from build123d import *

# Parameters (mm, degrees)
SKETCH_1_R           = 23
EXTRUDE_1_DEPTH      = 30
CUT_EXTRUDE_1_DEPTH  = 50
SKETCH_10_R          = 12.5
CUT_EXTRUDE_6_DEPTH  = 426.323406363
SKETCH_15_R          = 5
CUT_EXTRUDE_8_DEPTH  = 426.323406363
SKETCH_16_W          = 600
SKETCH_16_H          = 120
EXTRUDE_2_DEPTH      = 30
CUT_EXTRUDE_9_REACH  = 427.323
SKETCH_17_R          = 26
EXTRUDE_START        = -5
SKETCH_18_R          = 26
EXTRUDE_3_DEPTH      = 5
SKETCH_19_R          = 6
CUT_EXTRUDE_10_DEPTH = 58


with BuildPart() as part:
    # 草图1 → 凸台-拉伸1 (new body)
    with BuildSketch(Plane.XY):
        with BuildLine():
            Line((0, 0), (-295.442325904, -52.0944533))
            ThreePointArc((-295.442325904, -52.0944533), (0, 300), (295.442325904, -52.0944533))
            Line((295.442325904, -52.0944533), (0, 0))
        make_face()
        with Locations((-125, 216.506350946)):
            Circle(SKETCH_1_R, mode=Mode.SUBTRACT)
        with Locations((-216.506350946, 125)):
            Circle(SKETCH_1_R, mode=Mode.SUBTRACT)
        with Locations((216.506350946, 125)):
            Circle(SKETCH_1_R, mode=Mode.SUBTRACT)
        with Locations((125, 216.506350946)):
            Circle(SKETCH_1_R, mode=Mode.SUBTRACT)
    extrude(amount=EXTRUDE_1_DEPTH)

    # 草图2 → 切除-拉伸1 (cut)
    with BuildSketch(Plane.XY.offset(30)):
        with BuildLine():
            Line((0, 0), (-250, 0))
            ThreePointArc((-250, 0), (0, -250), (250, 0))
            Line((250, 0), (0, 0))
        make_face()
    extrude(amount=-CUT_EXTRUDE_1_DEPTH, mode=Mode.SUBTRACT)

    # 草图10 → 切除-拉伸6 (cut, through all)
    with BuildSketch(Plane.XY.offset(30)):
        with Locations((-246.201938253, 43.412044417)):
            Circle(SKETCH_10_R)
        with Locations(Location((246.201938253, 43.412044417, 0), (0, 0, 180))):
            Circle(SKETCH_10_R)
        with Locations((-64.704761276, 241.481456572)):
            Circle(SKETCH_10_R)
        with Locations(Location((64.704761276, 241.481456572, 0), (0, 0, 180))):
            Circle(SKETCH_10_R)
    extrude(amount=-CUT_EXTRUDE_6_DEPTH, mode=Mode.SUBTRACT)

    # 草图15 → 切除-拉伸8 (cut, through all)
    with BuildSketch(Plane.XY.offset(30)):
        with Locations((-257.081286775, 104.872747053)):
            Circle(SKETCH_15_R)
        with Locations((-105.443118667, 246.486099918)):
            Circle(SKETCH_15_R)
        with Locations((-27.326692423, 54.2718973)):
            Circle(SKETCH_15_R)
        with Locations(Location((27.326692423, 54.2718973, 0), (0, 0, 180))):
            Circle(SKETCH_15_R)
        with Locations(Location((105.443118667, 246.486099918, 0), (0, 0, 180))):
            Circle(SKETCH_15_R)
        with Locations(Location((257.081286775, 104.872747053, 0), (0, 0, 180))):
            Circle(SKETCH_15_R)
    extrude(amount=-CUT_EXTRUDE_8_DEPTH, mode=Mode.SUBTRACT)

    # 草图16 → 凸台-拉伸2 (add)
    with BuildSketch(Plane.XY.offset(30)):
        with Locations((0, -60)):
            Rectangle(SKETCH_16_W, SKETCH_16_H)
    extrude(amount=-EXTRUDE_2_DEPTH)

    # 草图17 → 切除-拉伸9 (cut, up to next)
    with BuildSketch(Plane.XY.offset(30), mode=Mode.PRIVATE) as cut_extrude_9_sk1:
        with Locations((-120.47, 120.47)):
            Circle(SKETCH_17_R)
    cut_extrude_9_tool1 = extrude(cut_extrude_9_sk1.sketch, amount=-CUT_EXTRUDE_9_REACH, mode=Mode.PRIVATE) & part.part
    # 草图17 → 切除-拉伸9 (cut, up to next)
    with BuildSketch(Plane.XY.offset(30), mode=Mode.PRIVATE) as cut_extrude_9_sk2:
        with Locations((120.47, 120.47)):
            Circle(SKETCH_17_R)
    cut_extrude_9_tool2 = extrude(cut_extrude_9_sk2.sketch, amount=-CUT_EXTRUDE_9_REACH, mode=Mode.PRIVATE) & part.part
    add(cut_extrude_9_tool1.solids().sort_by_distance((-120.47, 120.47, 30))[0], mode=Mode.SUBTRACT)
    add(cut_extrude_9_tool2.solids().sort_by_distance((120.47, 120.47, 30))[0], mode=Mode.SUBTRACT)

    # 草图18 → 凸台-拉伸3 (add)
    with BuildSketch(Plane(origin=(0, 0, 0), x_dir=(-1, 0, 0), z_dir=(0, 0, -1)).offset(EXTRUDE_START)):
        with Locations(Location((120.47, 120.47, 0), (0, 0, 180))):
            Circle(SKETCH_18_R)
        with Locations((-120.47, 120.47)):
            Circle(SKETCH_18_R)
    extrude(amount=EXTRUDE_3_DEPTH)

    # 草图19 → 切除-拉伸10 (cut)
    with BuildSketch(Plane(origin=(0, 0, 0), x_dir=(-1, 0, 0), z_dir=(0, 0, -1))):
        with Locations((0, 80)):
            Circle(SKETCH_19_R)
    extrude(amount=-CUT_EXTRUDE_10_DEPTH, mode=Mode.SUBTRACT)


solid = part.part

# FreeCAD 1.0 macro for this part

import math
import FreeCAD as App
import Part
import Sketcher

V = App.Vector
Q = App.Units.Quantity

doc = App.newDocument("Part")
body = doc.addObject("PartDesign::Body", "Body")

sketch1 = body.newObject("Sketcher::SketchObject", "Sketch")
sketch1.AttachmentSupport = (doc.getObject("XY_Plane"), [""])
sketch1.MapMode = "FlatFace"
sketch1.addGeometry([
    Part.LineSegment(V(-295, -52, 0), V(0, 0, 0)),
    Part.LineSegment(V(0, 0, 0), V(295, -52, 0)),
    Part.ArcOfCircle(Part.Circle(V(0, 0, 0), V(0, 0, 1), 300), math.radians(-10), math.radians(190)),
    Part.Circle(V(217, 125, 0), V(0, 0, 1), 23),
    Part.Circle(V(-217, 125, 0), V(0, 0, 1), 23),
    Part.Circle(V(125, 217, 0), V(0, 0, 1), 23),
    Part.Circle(V(-125, 217, 0), V(0, 0, 1), 23),
], False)
sketch1.addConstraint([
    Sketcher.Constraint("Coincident", 0, 2, 1, 1),
    Sketcher.Constraint("Coincident", 1, 2, 2, 1),
    Sketcher.Constraint("Coincident", 2, 2, 0, 1),
    Sketcher.Constraint("Coincident", 2, 3, -1, 1),
    Sketcher.Constraint("Coincident", 0, 2, -1, 1),
    Sketcher.Constraint("Equal", 3, 4),
    Sketcher.Constraint("Equal", 4, 5),
    Sketcher.Constraint("Equal", 5, 6),
    Sketcher.Constraint("Symmetric", 3, 3, 4, 3, -2),
    Sketcher.Constraint("Symmetric", 5, 3, 6, 3, -2),
    Sketcher.Constraint("Horizontal", 1, 2, 2, 2),
    Sketcher.Constraint("Diameter", 3, 46.0),
    Sketcher.Constraint("Radius", 2, 300.0),
    Sketcher.Constraint("Angle", 0, Q("10 deg")),
    Sketcher.Constraint("DistanceY", -1, 1, 3, 3, 125.0),
    Sketcher.Constraint("DistanceX", -1, 1, 5, 3, 125.0),
    Sketcher.Constraint("DistanceX", 4, 3, 3, 3, 433.012702),
    Sketcher.Constraint("DistanceY", -1, 1, 5, 3, 216.506351),
])
pad1 = body.newObject("PartDesign::Pad", "Pad")
pad1.Profile = sketch1
pad1.Length = 30

sketch2 = body.newObject("Sketcher::SketchObject", "Sketch001")
sketch2.AttachmentSupport = (doc.getObject("XY_Plane"), [""])
sketch2.MapMode = "FlatFace"
sketch2.AttachmentOffset = App.Placement(V(0, 0, 30), App.Rotation())
sketch2.addGeometry([
    Part.ArcOfCircle(Part.Circle(V(0, 0, 0), V(0, 0, 1), 250), math.radians(180), math.radians(360)),
    Part.LineSegment(V(250, 0, 0), V(-250, 0, 0)),
], False)
sketch2.addConstraint([
    Sketcher.Constraint("Coincident", 0, 1, 1, 2),
    Sketcher.Constraint("Coincident", 1, 1, 0, 2),
    Sketcher.Constraint("Horizontal", 1),
    Sketcher.Constraint("Coincident", 0, 3, -1, 1),
    Sketcher.Constraint("PointOnObject", 0, 1, -1),
    Sketcher.Constraint("Radius", 0, 250.0),
])
pocket1 = body.newObject("PartDesign::Pocket", "Pocket")
pocket1.Profile = sketch2
pocket1.Length = 50

sketch3 = body.newObject("Sketcher::SketchObject", "Sketch002")
sketch3.AttachmentSupport = (doc.getObject("XY_Plane"), [""])
sketch3.MapMode = "FlatFace"
sketch3.AttachmentOffset = App.Placement(V(0, 0, 30), App.Rotation())
sketch3.addGeometry([
    Part.Circle(V(-246, 43, 0), V(0, 0, 1), 12),
    Part.Circle(V(246, 43, 0), V(0, 0, 1), 12),
    Part.Circle(V(-65, 241, 0), V(0, 0, 1), 12),
    Part.Circle(V(65, 241, 0), V(0, 0, 1), 12),
], False)
sketch3.addConstraint([
    Sketcher.Constraint("Equal", 0, 1),
    Sketcher.Constraint("Equal", 1, 2),
    Sketcher.Constraint("Equal", 2, 3),
    Sketcher.Constraint("Symmetric", 0, 3, 1, 3, -2),
    Sketcher.Constraint("Symmetric", 2, 3, 3, 3, -2),
    Sketcher.Constraint("Diameter", 0, 25.0),
    Sketcher.Constraint("DistanceX", 2, 3, 1, 3, 310.9067),
    Sketcher.Constraint("DistanceX", 0, 3, -1, 1, 246.201938),
    Sketcher.Constraint("DistanceY", -1, 1, 0, 3, 43.412044),
    Sketcher.Constraint("DistanceY", -1, 1, 2, 3, 241.481457),
])
pocket2 = body.newObject("PartDesign::Pocket", "Pocket001")
pocket2.Profile = sketch3
pocket2.Type = "ThroughAll"

sketch4 = body.newObject("Sketcher::SketchObject", "Sketch003")
sketch4.AttachmentSupport = (doc.getObject("XY_Plane"), [""])
sketch4.MapMode = "FlatFace"
sketch4.AttachmentOffset = App.Placement(V(0, 0, 30), App.Rotation())
sketch4.addGeometry([
    Part.Circle(V(-257, 105, 0), V(0, 0, 1), 5),
    Part.Circle(V(-105, 246, 0), V(0, 0, 1), 5),
    Part.Circle(V(-27, 54, 0), V(0, 0, 1), 5),
    Part.Circle(V(27, 54, 0), V(0, 0, 1), 5),
    Part.Circle(V(105, 246, 0), V(0, 0, 1), 5),
    Part.Circle(V(257, 105, 0), V(0, 0, 1), 5),
], False)
sketch4.addConstraint([
    Sketcher.Constraint("Equal", 0, 1),
    Sketcher.Constraint("Equal", 1, 2),
    Sketcher.Constraint("Equal", 2, 3),
    Sketcher.Constraint("Equal", 3, 4),
    Sketcher.Constraint("Equal", 4, 5),
    Sketcher.Constraint("Symmetric", 2, 3, 3, 3, -2),
    Sketcher.Constraint("Symmetric", 1, 3, 4, 3, -2),
    Sketcher.Constraint("Symmetric", 0, 3, 5, 3, -2),
    Sketcher.Constraint("Diameter", 0, 10.0),
    Sketcher.Constraint("DistanceY", -1, 1, 1, 3, 246.4861),
    Sketcher.Constraint("DistanceX", 1, 3, -1, 1, 105.443119),
    Sketcher.Constraint("DistanceX", 0, 3, 1, 3, 151.638168),
    Sketcher.Constraint("DistanceY", 2, 3, 0, 3, 50.60085),
    Sketcher.Constraint("DistanceX", 1, 3, 3, 3, 132.769811),
    Sketcher.Constraint("DistanceY", -1, 1, 0, 3, 104.872747),
])
pocket3 = body.newObject("PartDesign::Pocket", "Pocket002")
pocket3.Profile = sketch4
pocket3.Type = "ThroughAll"

sketch5 = body.newObject("Sketcher::SketchObject", "Sketch004")
sketch5.AttachmentSupport = (doc.getObject("XY_Plane"), [""])
sketch5.MapMode = "FlatFace"
sketch5.AttachmentOffset = App.Placement(V(0, 0, 30), App.Rotation())
sketch5.addGeometry([
    Part.LineSegment(V(-300, 0, 0), V(-300, -120, 0)),
    Part.LineSegment(V(-300, -120, 0), V(300, -120, 0)),
    Part.LineSegment(V(300, -120, 0), V(300, 0, 0)),
    Part.LineSegment(V(300, 0, 0), V(-300, 0, 0)),
], False)
sketch5.addConstraint([
    Sketcher.Constraint("Coincident", 0, 2, 1, 1),
    Sketcher.Constraint("Coincident", 1, 2, 2, 1),
    Sketcher.Constraint("Coincident", 2, 2, 3, 1),
    Sketcher.Constraint("Coincident", 3, 2, 0, 1),
    Sketcher.Constraint("Vertical", 0),
    Sketcher.Constraint("Horizontal", 1),
    Sketcher.Constraint("Vertical", 2),
    Sketcher.Constraint("Horizontal", 3),
    Sketcher.Constraint("Symmetric", 2, 2, 3, 2, -1, 1),
    Sketcher.Constraint("DistanceX", 1, 1, 1, 2, 600.0),
    Sketcher.Constraint("DistanceY", 0, 2, 0, 1, 120.0),
])
pad2 = body.newObject("PartDesign::Pad", "Pad001")
pad2.Profile = sketch5
pad2.Length = 30
pad2.Reversed = True

sketch6 = body.newObject("Sketcher::SketchObject", "Sketch005")
sketch6.AttachmentSupport = (doc.getObject("XY_Plane"), [""])
sketch6.MapMode = "FlatFace"
sketch6.AttachmentOffset = App.Placement(V(0, 0, 30), App.Rotation())
sketch6.addGeometry(Part.Circle(V(-120, 120, 0), V(0, 0, 1), 26), False)
sketch6.addConstraint([
    Sketcher.Constraint("Diameter", 0, 52.0),
    Sketcher.Constraint("DistanceX", 0, 3, -1, 1, 120.47),
    Sketcher.Constraint("DistanceY", -1, 1, 0, 3, 120.47),
])
pocket4 = body.newObject("PartDesign::Pocket", "Pocket003")
pocket4.Profile = sketch6
pocket4.Type = "UpToFirst"

sketch7 = body.newObject("Sketcher::SketchObject", "Sketch006")
sketch7.AttachmentSupport = (doc.getObject("XY_Plane"), [""])
sketch7.MapMode = "FlatFace"
sketch7.AttachmentOffset = App.Placement(V(0, 0, 30), App.Rotation())
sketch7.addGeometry(Part.Circle(V(120, 120, 0), V(0, 0, 1), 26), False)
sketch7.addConstraint([
    Sketcher.Constraint("Diameter", 0, 52.0),
    Sketcher.Constraint("DistanceX", -1, 1, 0, 3, 120.47),
    Sketcher.Constraint("DistanceY", -1, 1, 0, 3, 120.47),
])
pocket5 = body.newObject("PartDesign::Pocket", "Pocket004")
pocket5.Profile = sketch7
pocket5.Type = "UpToFirst"

sketch8 = body.newObject("Sketcher::SketchObject", "Sketch007")
sketch8.AttachmentSupport = (doc.getObject("XY_Plane"), [""])
sketch8.MapMode = "FlatFace"
sketch8.AttachmentOffset = App.Placement(V(0, 0, 5), App.Rotation())
sketch8.addGeometry([
    Part.Circle(V(-120, 120, 0), V(0, 0, 1), 26),
    Part.Circle(V(120, 120, 0), V(0, 0, 1), 26),
], False)
sketch8.addConstraint([
    Sketcher.Constraint("Equal", 0, 1),
    Sketcher.Constraint("Symmetric", 0, 3, 1, 3, -2),
    Sketcher.Constraint("Diameter", 0, 52.0),
    Sketcher.Constraint("DistanceX", 0, 3, -1, 1, 120.47),
    Sketcher.Constraint("DistanceY", -1, 1, 0, 3, 120.47),
])
pad3 = body.newObject("PartDesign::Pad", "Pad002")
pad3.Profile = sketch8
pad3.Length = 5
pad3.Reversed = True

sketch9 = body.newObject("Sketcher::SketchObject", "Sketch008")
sketch9.AttachmentSupport = (doc.getObject("XY_Plane"), [""])
sketch9.MapMode = "FlatFace"
sketch9.addGeometry(Part.Circle(V(0, 80, 0), V(0, 0, 1), 6), False)
sketch9.addConstraint([
    Sketcher.Constraint("PointOnObject", 0, 3, -2),
    Sketcher.Constraint("Diameter", 0, 12.0),
    Sketcher.Constraint("DistanceY", -1, 1, 0, 3, 80.0),
])
pocket6 = body.newObject("PartDesign::Pocket", "Pocket005")
pocket6.Profile = sketch9
pocket6.Length = 58
pocket6.Reversed = True

doc.recompute()
